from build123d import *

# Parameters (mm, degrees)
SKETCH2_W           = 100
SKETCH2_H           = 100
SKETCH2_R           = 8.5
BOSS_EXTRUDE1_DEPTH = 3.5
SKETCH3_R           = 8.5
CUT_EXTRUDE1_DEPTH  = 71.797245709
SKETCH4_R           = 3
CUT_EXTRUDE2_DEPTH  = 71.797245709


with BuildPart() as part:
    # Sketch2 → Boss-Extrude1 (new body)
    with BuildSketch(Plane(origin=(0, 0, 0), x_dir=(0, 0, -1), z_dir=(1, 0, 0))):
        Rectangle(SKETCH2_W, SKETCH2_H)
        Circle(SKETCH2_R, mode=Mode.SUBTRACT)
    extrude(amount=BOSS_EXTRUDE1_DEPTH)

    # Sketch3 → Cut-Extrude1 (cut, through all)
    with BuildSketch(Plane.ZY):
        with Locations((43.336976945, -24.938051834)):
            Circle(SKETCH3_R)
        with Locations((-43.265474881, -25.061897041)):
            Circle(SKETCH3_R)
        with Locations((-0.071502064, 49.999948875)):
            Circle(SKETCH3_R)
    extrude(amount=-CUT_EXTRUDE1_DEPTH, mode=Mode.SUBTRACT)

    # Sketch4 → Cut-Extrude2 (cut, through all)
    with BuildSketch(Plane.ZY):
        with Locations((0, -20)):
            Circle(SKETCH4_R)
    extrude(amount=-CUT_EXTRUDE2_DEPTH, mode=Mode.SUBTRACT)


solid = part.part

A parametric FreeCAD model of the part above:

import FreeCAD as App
import Part
import Sketcher
from FreeCAD import Vector
Q = App.Units.Quantity

doc = App.newDocument("Part")
body = doc.addObject("PartDesign::Body", "Body")

# Sketch on YZ plane
sketch1 = body.newObject("Sketcher::SketchObject", "Sketch")
sketch1.AttachmentSupport = (doc.getObject("YZ_Plane"), [""])
sketch1.MapMode = "FlatFace"
sketch1.addGeometry(Part.LineSegment(Vector(50, 50, 0), Vector(-50, 50, 0)), False)
sketch1.addGeometry(Part.LineSegment(Vector(-50, 50, 0), Vector(-50, -50, 0)), False)
sketch1.addGeometry(Part.LineSegment(Vector(-50, -50, 0), Vector(50, -50, 0)), False)
sketch1.addGeometry(Part.LineSegment(Vector(50, -50, 0), Vector(50, 50, 0)), False)
sketch1.addGeometry(Part.Circle(Vector(0, 0, 0), Vector(0, 0, 1), 8.5), False)
sketch1.addConstraint(Sketcher.Constraint("Coincident", 0, 2, 1, 1))
sketch1.addConstraint(Sketcher.Constraint("Coincident", 1, 2, 2, 1))
sketch1.addConstraint(Sketcher.Constraint("Coincident", 2, 2, 3, 1))
sketch1.addConstraint(Sketcher.Constraint("Coincident", 3, 2, 0, 1))
sketch1.addConstraint(Sketcher.Constraint("Horizontal", 0))
sketch1.addConstraint(Sketcher.Constraint("Vertical", 1))
sketch1.addConstraint(Sketcher.Constraint("Horizontal", 2))
sketch1.addConstraint(Sketcher.Constraint("Vertical", 3))
sketch1.addConstraint(Sketcher.Constraint("Coincident", 4, 3, -1, 1))
sketch1.addConstraint(Sketcher.Constraint("Symmetric", 0, 2, 2, 2, -1, 1))
sketch1.addConstraint(Sketcher.Constraint("Equal", 2, 1))
sketch1.addConstraint(Sketcher.Constraint("Diameter", 4, Q("17 mm")))
sketch1.addConstraint(Sketcher.Constraint("DistanceX", 0, 2, 0, 1, Q("100 mm")))
pad1 = body.newObject("PartDesign::Pad", "Pad")
pad1.Profile = sketch1
pad1.Length = 3.5

# Sketch on YZ plane
sketch2 = body.newObject("Sketcher::SketchObject", "Sketch001")
sketch2.AttachmentSupport = (doc.getObject("YZ_Plane"), [""])
sketch2.MapMode = "FlatFace"
sketch2.addGeometry(Part.Circle(Vector(-24.938052, 43.336977, 0), Vector(0, 0, 1), 8.5), False)
sketch2.addGeometry(Part.Circle(Vector(-25.061897, -43.265475, 0), Vector(0, 0, 1), 8.5), False)
sketch2.addGeometry(Part.Circle(Vector(49.999949, -0.071502, 0), Vector(0, 0, 1), 8.5), False)
sketch2.addConstraint(Sketcher.Constraint("Equal", 0, 1))
sketch2.addConstraint(Sketcher.Constraint("Equal", 1, 2))
sketch2.addConstraint(Sketcher.Constraint("Diameter", 0, Q("17 mm")))
sketch2.addConstraint(Sketcher.Constraint("DistanceX", 0, 3, 2, 3, Q("74.938001 mm")))
sketch2.addConstraint(Sketcher.Constraint("DistanceX", 0, 3, -1, 1, Q("24.938052 mm")))
sketch2.addConstraint(Sketcher.Constraint("DistanceY", 1, 3, 0, 3, Q("86.602452 mm")))
sketch2.addConstraint(Sketcher.Constraint("DistanceY", 2, 3, 0, 3, Q("43.408479 mm")))
sketch2.addConstraint(Sketcher.Constraint("DistanceY", -1, 1, 0, 3, Q("43.336977 mm")))
sketch2.addConstraint(Sketcher.Constraint("DistanceX", 1, 3, -1, 1, Q("25.061897 mm")))
pocket1 = body.newObject("PartDesign::Pocket", "Pocket")
pocket1.Profile = sketch2
pocket1.Type = "ThroughAll"
pocket1.Reversed = True

# Sketch on YZ plane
sketch3 = body.newObject("Sketcher::SketchObject", "Sketch002")
sketch3.AttachmentSupport = (doc.getObject("YZ_Plane"), [""])
sketch3.MapMode = "FlatFace"
sketch3.addGeometry(Part.Circle(Vector(-20, 0, 0), Vector(0, 0, 1), 3), False)
sketch3.addConstraint(Sketcher.Constraint("PointOnObject", 0, 3, -1))
sketch3.addConstraint(Sketcher.Constraint("Diameter", 0, Q("6 mm")))
sketch3.addConstraint(Sketcher.Constraint("DistanceX", 0, 3, -1, 1, Q("20 mm")))
pocket2 = body.newObject("PartDesign::Pocket", "Pocket001")
pocket2.Profile = sketch3
pocket2.Type = "ThroughAll"
pocket2.Reversed = True

doc.recompute()
